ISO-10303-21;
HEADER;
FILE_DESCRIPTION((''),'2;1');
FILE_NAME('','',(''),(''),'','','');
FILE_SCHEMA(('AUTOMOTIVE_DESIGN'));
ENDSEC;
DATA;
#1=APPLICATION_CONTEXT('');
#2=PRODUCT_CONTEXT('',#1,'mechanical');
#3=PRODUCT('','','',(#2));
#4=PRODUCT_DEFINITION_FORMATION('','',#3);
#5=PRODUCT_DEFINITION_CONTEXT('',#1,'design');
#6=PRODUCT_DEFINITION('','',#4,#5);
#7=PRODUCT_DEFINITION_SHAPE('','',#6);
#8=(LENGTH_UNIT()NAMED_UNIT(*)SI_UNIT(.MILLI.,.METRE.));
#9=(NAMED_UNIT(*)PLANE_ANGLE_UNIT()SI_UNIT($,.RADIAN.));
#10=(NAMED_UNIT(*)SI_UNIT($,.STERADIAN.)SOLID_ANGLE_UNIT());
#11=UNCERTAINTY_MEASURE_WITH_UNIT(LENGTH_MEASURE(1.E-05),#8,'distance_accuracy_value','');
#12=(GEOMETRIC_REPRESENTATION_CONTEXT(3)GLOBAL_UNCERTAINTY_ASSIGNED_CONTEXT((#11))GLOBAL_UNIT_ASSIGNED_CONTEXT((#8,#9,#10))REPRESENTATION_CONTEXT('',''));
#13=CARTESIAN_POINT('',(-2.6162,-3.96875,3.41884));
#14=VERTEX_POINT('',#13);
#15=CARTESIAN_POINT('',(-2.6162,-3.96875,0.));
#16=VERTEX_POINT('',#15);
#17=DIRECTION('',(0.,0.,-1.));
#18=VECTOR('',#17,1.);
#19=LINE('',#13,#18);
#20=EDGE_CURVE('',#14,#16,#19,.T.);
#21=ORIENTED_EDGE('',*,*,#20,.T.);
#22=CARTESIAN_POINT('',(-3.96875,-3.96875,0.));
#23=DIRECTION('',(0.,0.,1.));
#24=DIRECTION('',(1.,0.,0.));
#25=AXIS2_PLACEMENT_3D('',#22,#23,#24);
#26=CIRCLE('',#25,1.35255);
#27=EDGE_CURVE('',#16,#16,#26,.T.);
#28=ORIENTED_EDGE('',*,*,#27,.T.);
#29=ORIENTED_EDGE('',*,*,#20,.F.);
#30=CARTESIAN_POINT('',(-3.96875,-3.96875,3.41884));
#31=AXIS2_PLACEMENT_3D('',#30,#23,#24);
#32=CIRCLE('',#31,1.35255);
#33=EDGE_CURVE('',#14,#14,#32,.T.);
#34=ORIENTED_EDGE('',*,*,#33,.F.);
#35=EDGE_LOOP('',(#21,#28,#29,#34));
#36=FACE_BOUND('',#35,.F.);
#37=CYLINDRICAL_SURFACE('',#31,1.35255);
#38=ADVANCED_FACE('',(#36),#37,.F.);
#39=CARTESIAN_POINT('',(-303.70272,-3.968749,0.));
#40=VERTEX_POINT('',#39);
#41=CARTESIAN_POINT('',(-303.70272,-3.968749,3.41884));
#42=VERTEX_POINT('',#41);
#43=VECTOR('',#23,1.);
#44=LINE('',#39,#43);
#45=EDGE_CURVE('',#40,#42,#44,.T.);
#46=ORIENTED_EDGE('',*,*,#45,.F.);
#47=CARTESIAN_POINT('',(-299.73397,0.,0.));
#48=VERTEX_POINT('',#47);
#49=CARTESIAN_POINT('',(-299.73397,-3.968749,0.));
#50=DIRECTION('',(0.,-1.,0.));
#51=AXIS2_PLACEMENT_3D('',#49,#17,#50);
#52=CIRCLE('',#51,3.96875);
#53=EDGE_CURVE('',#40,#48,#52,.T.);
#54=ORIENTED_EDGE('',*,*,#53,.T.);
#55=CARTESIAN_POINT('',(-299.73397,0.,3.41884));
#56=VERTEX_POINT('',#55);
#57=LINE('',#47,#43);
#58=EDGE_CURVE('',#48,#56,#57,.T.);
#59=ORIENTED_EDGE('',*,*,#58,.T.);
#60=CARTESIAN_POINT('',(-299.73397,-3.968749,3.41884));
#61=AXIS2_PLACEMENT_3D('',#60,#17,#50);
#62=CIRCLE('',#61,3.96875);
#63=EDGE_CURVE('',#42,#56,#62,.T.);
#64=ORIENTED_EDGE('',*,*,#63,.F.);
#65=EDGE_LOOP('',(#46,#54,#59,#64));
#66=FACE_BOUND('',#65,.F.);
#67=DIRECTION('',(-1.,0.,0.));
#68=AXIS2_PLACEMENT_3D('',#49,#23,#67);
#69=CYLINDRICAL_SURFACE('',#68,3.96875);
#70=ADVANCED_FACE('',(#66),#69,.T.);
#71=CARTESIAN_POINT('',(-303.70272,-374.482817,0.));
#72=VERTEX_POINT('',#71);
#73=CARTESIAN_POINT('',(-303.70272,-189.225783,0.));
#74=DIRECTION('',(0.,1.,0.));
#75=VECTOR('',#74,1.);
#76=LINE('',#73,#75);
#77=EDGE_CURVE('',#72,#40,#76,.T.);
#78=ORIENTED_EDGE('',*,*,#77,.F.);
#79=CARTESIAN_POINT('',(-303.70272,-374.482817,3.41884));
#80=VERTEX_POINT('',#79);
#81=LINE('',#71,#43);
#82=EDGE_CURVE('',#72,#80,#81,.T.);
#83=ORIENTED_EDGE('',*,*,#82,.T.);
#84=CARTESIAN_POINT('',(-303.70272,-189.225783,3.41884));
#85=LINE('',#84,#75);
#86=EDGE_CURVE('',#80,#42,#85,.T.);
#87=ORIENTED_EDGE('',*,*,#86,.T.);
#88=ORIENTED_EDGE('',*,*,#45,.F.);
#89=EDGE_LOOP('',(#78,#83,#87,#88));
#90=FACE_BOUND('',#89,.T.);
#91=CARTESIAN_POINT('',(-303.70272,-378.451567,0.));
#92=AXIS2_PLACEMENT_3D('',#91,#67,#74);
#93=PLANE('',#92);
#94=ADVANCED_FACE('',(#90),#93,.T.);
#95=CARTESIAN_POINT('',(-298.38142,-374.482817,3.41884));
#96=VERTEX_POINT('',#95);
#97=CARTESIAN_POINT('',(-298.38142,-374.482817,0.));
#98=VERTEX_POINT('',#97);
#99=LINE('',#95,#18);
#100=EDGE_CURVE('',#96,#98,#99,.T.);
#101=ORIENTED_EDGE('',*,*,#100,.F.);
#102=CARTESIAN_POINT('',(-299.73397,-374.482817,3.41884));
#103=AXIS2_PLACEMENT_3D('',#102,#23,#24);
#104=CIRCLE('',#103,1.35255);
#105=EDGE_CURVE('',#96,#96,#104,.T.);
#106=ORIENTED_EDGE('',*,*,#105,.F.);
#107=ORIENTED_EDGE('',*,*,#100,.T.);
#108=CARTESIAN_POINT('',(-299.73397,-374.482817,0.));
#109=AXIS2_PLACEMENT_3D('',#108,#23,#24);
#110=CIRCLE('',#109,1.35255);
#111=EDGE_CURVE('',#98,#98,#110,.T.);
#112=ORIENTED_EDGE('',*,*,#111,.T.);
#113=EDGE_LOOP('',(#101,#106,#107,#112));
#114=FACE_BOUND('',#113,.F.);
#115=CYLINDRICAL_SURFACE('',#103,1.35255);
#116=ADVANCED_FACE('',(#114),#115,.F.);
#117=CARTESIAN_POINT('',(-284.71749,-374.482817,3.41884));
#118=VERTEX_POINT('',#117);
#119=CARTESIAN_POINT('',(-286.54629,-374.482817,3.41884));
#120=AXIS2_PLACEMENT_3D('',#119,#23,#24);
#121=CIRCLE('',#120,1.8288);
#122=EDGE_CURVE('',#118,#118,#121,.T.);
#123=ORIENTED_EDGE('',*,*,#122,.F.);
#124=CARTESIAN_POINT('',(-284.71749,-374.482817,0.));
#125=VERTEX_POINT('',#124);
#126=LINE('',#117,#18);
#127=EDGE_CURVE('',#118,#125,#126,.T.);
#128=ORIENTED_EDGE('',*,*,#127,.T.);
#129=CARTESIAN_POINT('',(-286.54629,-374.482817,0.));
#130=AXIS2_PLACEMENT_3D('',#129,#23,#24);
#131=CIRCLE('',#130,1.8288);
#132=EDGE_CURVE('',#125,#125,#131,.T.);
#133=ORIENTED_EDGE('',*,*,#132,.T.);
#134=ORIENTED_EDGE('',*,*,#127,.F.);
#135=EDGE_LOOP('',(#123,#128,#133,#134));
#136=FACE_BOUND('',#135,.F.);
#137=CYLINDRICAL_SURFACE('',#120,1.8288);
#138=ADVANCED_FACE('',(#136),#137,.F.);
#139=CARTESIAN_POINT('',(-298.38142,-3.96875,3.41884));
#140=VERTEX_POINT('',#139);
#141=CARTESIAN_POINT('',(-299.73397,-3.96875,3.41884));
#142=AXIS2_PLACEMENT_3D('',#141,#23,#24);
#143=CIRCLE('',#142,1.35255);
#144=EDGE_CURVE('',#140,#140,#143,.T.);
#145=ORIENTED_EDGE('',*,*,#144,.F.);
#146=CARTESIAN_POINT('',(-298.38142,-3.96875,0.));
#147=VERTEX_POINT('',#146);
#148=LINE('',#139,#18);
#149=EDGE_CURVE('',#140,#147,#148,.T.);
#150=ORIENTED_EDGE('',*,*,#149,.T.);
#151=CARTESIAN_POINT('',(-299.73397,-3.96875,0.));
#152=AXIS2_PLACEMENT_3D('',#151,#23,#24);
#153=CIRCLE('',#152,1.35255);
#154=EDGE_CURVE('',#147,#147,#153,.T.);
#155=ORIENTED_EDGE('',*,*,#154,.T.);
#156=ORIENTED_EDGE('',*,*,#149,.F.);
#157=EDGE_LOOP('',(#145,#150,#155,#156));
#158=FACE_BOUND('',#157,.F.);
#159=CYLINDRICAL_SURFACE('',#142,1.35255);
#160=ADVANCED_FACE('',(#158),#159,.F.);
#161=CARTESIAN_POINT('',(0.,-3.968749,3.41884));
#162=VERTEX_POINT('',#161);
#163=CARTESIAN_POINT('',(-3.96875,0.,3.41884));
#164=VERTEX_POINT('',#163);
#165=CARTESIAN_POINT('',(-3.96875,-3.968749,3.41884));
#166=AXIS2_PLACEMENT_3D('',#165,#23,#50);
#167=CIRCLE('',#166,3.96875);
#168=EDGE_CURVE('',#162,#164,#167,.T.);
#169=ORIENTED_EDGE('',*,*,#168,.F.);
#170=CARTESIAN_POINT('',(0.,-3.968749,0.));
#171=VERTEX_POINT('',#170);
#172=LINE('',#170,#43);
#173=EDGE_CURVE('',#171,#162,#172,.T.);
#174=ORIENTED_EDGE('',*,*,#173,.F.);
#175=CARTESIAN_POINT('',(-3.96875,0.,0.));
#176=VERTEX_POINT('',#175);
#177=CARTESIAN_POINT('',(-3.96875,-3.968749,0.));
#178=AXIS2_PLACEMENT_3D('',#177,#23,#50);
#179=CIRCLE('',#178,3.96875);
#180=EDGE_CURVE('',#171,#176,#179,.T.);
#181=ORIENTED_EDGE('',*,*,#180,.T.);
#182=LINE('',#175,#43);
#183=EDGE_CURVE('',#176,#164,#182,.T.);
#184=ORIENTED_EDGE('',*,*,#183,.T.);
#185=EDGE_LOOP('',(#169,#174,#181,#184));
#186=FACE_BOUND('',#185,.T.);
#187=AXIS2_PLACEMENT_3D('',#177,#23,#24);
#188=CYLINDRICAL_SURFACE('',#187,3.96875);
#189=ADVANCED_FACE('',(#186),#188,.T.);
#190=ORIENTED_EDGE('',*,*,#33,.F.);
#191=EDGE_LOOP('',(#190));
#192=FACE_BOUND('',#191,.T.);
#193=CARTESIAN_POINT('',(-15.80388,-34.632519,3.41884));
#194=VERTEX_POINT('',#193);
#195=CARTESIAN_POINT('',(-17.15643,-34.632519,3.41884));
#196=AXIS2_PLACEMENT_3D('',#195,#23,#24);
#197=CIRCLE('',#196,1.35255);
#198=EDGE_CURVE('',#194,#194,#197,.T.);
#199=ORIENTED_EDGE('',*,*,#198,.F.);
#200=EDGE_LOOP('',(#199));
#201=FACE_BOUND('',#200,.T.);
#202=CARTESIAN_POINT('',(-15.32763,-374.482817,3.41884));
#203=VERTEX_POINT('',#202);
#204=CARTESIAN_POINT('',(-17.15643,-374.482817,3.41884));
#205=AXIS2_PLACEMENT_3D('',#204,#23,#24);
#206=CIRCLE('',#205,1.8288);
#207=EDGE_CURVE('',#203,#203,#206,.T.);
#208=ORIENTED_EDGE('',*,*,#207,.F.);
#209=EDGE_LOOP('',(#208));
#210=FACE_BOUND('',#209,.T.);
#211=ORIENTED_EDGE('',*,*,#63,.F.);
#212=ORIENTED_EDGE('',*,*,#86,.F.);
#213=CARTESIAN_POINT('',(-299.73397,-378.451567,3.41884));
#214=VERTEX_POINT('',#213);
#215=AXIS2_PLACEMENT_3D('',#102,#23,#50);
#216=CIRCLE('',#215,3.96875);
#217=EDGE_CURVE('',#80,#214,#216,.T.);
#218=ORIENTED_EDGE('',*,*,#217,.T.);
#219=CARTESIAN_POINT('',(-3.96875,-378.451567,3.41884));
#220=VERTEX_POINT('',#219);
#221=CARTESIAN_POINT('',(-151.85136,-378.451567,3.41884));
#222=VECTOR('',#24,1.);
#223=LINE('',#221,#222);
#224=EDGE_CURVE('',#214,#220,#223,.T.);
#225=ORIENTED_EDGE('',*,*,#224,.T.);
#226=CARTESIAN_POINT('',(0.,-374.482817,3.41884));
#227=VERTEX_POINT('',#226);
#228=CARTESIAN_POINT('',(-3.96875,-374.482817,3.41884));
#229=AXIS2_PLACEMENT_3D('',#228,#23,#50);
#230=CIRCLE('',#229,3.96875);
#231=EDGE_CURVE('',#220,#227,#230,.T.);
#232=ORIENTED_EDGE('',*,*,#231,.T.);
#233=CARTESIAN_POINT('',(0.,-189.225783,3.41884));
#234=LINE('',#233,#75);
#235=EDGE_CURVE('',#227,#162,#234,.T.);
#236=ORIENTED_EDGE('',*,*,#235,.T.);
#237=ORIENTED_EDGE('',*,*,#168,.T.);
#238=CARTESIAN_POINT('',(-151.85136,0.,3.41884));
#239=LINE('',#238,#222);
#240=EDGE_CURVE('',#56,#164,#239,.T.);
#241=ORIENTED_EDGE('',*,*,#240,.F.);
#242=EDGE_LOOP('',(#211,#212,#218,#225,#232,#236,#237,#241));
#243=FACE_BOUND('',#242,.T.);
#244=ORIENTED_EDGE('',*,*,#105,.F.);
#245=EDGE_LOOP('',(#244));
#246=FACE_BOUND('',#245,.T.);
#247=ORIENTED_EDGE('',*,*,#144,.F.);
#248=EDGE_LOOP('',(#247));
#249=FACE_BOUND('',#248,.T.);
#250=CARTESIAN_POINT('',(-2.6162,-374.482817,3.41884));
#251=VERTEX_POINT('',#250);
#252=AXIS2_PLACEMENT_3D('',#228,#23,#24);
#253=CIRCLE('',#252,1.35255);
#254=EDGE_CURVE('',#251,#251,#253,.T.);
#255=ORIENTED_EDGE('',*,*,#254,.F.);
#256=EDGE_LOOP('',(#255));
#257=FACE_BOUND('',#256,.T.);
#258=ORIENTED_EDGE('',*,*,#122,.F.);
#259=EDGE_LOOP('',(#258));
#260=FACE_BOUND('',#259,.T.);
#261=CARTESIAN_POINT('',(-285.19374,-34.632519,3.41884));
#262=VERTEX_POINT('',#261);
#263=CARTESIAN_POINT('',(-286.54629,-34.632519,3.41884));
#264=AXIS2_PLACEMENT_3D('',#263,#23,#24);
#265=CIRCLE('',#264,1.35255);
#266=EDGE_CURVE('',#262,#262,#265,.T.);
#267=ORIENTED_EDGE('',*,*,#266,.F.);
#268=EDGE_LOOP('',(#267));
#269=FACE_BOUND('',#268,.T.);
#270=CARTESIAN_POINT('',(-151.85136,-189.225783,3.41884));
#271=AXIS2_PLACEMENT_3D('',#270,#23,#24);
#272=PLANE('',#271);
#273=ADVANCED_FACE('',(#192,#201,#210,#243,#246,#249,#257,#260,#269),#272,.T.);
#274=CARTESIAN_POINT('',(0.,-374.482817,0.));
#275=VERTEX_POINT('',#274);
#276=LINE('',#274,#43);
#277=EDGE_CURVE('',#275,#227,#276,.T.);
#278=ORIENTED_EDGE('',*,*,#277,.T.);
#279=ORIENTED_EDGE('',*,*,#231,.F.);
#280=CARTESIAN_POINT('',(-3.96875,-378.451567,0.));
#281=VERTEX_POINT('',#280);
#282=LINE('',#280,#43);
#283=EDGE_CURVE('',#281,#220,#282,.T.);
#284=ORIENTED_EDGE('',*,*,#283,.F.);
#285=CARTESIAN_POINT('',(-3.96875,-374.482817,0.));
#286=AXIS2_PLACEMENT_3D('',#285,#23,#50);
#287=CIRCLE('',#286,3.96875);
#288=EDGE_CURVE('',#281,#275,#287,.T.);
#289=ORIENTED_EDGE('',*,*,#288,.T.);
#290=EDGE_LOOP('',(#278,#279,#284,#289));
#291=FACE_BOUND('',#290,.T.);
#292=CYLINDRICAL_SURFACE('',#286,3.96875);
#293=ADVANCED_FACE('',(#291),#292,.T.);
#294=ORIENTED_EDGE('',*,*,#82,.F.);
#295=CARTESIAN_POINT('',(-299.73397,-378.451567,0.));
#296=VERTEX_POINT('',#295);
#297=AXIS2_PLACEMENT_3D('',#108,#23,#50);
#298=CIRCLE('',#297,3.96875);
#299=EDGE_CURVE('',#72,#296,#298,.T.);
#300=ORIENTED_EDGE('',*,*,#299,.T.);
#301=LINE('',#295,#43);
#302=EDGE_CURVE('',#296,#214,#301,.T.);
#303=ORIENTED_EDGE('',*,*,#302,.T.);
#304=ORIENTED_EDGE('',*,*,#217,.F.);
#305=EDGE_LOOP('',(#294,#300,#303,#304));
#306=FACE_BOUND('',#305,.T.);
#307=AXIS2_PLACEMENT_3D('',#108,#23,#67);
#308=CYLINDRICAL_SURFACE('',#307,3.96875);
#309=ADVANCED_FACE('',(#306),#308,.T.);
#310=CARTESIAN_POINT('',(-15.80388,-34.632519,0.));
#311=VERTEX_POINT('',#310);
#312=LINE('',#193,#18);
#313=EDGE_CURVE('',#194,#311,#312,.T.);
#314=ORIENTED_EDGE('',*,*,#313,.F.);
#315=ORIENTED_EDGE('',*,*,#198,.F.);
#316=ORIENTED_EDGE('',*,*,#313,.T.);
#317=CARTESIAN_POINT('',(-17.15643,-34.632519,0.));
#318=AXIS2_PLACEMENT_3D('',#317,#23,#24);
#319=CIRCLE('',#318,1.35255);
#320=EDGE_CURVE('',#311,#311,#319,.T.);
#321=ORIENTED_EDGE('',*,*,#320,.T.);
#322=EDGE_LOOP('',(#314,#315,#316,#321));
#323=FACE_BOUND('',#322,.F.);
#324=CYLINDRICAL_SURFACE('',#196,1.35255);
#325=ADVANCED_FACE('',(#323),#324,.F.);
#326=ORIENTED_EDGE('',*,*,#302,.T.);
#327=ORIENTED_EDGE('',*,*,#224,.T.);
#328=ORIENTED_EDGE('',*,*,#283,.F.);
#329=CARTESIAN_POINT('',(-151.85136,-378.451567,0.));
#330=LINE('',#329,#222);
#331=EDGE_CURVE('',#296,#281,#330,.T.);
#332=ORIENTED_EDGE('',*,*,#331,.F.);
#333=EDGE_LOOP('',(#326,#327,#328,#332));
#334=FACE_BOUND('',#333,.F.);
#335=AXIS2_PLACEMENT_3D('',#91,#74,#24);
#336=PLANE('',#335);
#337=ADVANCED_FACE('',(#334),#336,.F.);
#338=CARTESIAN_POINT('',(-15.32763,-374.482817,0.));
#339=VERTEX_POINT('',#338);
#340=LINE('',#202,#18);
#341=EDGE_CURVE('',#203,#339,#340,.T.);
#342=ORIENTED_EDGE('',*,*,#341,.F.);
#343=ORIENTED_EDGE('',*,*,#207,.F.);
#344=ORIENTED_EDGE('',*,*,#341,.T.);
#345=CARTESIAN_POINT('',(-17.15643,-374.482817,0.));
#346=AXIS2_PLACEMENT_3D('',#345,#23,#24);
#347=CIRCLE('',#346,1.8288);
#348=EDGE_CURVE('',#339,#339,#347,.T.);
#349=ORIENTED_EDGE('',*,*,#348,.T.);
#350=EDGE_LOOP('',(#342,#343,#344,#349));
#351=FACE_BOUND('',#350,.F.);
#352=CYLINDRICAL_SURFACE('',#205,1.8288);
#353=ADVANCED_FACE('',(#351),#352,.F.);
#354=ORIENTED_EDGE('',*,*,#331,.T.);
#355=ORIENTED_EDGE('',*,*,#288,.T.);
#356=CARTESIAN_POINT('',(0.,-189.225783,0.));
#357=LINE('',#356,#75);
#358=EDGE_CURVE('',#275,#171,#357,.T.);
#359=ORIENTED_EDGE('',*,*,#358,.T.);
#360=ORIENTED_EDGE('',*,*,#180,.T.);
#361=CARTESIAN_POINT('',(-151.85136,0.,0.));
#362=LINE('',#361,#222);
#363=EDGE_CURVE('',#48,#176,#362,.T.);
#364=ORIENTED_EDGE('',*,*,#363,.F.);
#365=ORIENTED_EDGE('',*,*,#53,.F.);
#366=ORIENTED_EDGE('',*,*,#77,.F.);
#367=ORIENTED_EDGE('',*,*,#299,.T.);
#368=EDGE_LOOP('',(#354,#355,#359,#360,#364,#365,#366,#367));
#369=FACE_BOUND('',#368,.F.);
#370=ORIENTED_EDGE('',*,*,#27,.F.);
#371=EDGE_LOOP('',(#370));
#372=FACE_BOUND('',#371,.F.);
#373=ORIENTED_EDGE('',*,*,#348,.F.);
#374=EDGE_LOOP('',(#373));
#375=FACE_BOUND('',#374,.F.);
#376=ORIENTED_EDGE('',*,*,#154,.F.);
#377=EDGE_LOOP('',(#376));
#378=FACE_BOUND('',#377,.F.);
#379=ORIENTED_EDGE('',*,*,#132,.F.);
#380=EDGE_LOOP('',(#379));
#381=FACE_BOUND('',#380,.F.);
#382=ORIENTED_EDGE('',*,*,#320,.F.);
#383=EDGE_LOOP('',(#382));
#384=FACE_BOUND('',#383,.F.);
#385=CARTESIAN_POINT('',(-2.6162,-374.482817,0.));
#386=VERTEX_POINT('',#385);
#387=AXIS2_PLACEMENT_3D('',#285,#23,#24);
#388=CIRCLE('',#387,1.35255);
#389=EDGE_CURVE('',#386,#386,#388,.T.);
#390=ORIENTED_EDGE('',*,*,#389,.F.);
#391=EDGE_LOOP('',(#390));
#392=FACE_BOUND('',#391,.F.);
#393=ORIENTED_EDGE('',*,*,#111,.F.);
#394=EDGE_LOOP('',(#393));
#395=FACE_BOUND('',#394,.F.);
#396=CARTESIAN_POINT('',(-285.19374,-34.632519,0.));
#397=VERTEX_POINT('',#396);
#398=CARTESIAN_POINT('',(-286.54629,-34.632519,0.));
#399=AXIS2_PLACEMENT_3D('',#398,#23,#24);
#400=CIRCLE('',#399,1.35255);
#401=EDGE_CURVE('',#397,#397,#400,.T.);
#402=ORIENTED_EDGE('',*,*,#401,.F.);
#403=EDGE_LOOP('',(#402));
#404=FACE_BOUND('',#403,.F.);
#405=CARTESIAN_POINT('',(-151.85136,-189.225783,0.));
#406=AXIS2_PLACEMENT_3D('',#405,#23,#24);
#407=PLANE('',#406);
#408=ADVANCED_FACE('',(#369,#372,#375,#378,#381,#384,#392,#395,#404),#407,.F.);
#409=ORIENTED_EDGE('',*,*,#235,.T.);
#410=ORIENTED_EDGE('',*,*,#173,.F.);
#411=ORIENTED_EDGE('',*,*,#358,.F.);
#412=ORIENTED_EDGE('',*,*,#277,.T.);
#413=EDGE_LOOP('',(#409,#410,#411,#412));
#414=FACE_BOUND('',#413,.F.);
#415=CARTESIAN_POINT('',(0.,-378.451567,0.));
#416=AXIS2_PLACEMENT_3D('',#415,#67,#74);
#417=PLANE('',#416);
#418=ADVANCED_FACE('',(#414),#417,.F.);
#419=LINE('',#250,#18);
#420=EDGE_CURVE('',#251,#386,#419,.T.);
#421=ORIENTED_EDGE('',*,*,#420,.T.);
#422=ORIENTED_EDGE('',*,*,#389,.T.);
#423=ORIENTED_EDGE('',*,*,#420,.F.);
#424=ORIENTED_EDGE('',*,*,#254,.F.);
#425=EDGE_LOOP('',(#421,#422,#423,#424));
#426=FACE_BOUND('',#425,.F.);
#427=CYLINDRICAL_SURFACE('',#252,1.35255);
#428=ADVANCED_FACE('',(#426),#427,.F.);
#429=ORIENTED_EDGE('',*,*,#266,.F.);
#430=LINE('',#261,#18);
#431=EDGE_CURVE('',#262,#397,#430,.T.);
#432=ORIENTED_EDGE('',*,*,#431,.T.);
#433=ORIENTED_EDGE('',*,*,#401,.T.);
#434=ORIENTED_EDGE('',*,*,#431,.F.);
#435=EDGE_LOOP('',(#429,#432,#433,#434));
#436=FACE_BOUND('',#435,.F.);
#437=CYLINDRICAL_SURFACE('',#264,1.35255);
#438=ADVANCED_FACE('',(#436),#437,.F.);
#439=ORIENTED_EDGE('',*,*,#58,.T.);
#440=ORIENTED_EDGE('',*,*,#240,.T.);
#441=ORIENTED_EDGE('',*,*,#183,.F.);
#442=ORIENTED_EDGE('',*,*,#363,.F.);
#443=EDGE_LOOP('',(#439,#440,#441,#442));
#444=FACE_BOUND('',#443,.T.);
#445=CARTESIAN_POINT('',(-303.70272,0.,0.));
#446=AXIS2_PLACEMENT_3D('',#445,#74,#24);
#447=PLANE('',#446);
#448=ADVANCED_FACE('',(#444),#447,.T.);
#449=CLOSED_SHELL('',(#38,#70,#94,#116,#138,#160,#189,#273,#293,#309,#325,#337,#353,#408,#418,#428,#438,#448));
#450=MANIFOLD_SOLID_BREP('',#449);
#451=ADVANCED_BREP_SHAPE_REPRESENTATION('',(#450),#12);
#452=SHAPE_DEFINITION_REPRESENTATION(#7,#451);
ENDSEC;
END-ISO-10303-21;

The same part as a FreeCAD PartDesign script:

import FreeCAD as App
import Part
import Sketcher
Q = App.Units.Quantity


def edges_at(feature, points):
    """Names of the edges that pass closest to the given points."""
    edges = feature.Shape.Edges
    near = lambda p: min(range(len(edges)), key=lambda i: edges[i].distToShape(Part.Vertex(*p))[0])
    return sorted({f"Edge{near(p) + 1}" for p in points})

doc = App.newDocument("Part")
body = doc.addObject("PartDesign::Body", "Body")

sketch1 = body.newObject("Sketcher::SketchObject", "Sketch")
sketch1.AttachmentSupport = (doc.getObject("XY_Plane"), [""])
sketch1.MapMode = "FlatFace"
sketch1.addGeometry([
    Part.LineSegment(App.Vector(-304, 0, 0), App.Vector(-304, -378, 0)),
    Part.LineSegment(App.Vector(-304, -378, 0), App.Vector(0, -378, 0)),
    Part.LineSegment(App.Vector(0, -378, 0), App.Vector(0, 0, 0)),
    Part.LineSegment(App.Vector(0, 0, 0), App.Vector(-304, 0, 0)),
], False)
sketch1.addConstraint([
    Sketcher.Constraint("Coincident", 0, 2, 1, 1),
    Sketcher.Constraint("Coincident", 1, 2, 2, 1),
    Sketcher.Constraint("Coincident", 2, 2, 3, 1),
    Sketcher.Constraint("Coincident", 3, 2, 0, 1),
    Sketcher.Constraint("Vertical", 0),
    Sketcher.Constraint("Horizontal", 1),
    Sketcher.Constraint("Vertical", 2),
    Sketcher.Constraint("Horizontal", 3),
    Sketcher.Constraint("Coincident", 2, 2, -1, 1),
    Sketcher.Constraint("DistanceX", 1, 1, 1, 2, Q("11.9568 in")),
    Sketcher.Constraint("DistanceY", 0, 2, 0, 1, Q("378.451567 mm")),
])
pad1 = body.newObject("PartDesign::Pad", "Pad")
pad1.Profile = sketch1
pad1.Length = Q("0.1346 in")
doc.recompute()

fillet = body.newObject("PartDesign::Fillet", "Fillet")
fillet.Base = (pad1, edges_at(pad1, [
    (-303.703, 0, 1.709),
    (-303.703, -378.452, 1.709),
    (0, -378.452, 1.709),
    (0, 0, 1.709),
]))
fillet.Radius = Q("0.15625 in")

sketch2 = body.newObject("Sketcher::SketchObject", "Sketch001")
sketch2.AttachmentSupport = (doc.getObject("XY_Plane"), [""])
sketch2.MapMode = "FlatFace"
sketch2.AttachmentOffset = App.Placement(App.Vector(0, 0, 0.1346 * 25.4), App.Rotation())
sketch2.addGeometry([
    Part.Circle(App.Vector(-299.7, -4, 0), App.Vector(0, 0, 1), 1.4),
    Part.Circle(App.Vector(-4, -4, 0), App.Vector(0, 0, 1), 1.4),
    Part.Circle(App.Vector(-299.7, -374.5, 0), App.Vector(0, 0, 1), 1.4),
    Part.Circle(App.Vector(-4, -374.5, 0), App.Vector(0, 0, 1), 1.4),
    Part.Circle(App.Vector(-286.5, -34.6, 0), App.Vector(0, 0, 1), 1.4),
    Part.Circle(App.Vector(-17.2, -34.6, 0), App.Vector(0, 0, 1), 1.4),
], False)
sketch2.addConstraint([
    Sketcher.Constraint("Equal", 0, 1),
    Sketcher.Constraint("Equal", 1, 2),
    Sketcher.Constraint("Equal", 2, 3),
    Sketcher.Constraint("Equal", 3, 4),
    Sketcher.Constraint("Equal", 4, 5),
    Sketcher.Constraint("Horizontal", 0, 3, 1, 3),
    Sketcher.Constraint("Horizontal", 2, 3, 3, 3),
    Sketcher.Constraint("Horizontal", 4, 3, 5, 3),
    Sketcher.Constraint("Vertical", 0, 3, 2, 3),
    Sketcher.Constraint("Vertical", 1, 3, 3, 3),
    Sketcher.Constraint("Diameter", 0, Q("0.1065 in")),
    Sketcher.Constraint("DistanceY", 0, 3, -1, 1, Q("0.15625 in")),
    Sketcher.Constraint("DistanceX", 1, 3, -1, 1, Q("0.15625 in")),
    Sketcher.Constraint("DistanceX", 0, 3, 1, 3, Q("11.6443 in")),
    Sketcher.Constraint("DistanceX", 0, 3, 4, 3, Q("0.5192 in")),
    Sketcher.Constraint("DistanceX", 5, 3, 1, 3, Q("0.5192 in")),
    Sketcher.Constraint("DistanceY", 2, 3, 4, 3, Q("339.850298 mm")),
    Sketcher.Constraint("DistanceY", 4, 3, -1, 1, Q("34.632519 mm")),
])
pocket1 = body.newObject("PartDesign::Pocket", "Pocket")
pocket1.Profile = sketch2
pocket1.Type = "ThroughAll"

sketch3 = body.newObject("Sketcher::SketchObject", "Sketch002")
sketch3.AttachmentSupport = (doc.getObject("XY_Plane"), [""])
sketch3.MapMode = "FlatFace"
sketch3.AttachmentOffset = App.Placement(App.Vector(0, 0, 0.1346 * 25.4), App.Rotation())
sketch3.addGeometry([
    Part.Circle(App.Vector(-286.5, -374.5, 0), App.Vector(0, 0, 1), 1.8),
    Part.Circle(App.Vector(-17.2, -374.5, 0), App.Vector(0, 0, 1), 1.8),
], False)
sketch3.addConstraint([
    Sketcher.Constraint("Equal", 0, 1),
    Sketcher.Constraint("Horizontal", 0, 3, 1, 3),
    Sketcher.Constraint("Diameter", 0, Q("0.144 in")),
    Sketcher.Constraint("DistanceX", 0, 3, 1, 3, Q("10.6059 in")),
    Sketcher.Constraint("DistanceX", 0, 3, -1, 1, Q("286.54629 mm")),
    Sketcher.Constraint("DistanceY", 0, 3, -1, 1, Q("374.482817 mm")),
])
pocket2 = body.newObject("PartDesign::Pocket", "Pocket001")
pocket2.Profile = sketch3
pocket2.Type = "ThroughAll"

doc.recompute()
